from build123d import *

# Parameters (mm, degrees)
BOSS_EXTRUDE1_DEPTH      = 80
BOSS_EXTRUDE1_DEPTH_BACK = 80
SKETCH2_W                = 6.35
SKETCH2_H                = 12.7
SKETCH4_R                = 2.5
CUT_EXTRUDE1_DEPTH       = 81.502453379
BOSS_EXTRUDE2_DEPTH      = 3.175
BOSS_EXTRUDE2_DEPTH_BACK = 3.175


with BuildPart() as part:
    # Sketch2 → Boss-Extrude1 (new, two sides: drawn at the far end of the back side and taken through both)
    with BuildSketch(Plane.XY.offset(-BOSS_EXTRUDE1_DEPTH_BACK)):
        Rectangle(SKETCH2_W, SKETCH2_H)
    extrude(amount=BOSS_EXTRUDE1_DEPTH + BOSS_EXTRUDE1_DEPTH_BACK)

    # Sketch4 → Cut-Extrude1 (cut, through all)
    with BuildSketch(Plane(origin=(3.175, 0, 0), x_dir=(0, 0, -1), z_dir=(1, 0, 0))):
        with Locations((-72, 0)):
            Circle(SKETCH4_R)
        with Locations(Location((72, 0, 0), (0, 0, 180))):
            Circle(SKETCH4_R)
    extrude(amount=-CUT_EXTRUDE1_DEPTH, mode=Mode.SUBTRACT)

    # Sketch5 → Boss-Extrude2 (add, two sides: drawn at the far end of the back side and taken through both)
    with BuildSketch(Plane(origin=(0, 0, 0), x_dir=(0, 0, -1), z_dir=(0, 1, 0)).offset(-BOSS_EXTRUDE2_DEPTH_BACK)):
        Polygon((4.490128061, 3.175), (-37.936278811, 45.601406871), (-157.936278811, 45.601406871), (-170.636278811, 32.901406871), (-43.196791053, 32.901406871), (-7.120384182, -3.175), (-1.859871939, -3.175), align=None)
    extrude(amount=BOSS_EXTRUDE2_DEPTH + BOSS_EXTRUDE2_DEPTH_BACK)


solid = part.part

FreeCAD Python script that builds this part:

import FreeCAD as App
import Part
import Sketcher
Q = App.Units.Quantity


def add_polygon(sketch, points):
    """Adds a closed chain of lines whose ends are joined by coincident constraints."""
    first, n = sketch.GeometryCount, len(points)
    for a, b in zip(points, points[1:] + points[:1]):
        sketch.addGeometry(Part.LineSegment(App.Vector(*a, 0), App.Vector(*b, 0)), False)
    for i in range(n):
        sketch.addConstraint(Sketcher.Constraint("Coincident", first + i, 2, first + (i + 1) % n, 1))

doc = App.newDocument("Part")
body = doc.addObject("PartDesign::Body", "Body")

# Sketch on XY plane
sketch1 = body.newObject("Sketcher::SketchObject", "Sketch")
sketch1.AttachmentSupport = (doc.getObject("XY_Plane"), [""])
sketch1.MapMode = "FlatFace"
add_polygon(sketch1, [(-3.175, 6.35), (-3.175, -6.35), (3.175, -6.35), (3.175, 6.35)])  # lines 0-3
sketch1.addConstraint([
    Sketcher.Constraint("Vertical", 0),
    Sketcher.Constraint("Horizontal", 1),
    Sketcher.Constraint("Vertical", 2),
    Sketcher.Constraint("Horizontal", 3),
    Sketcher.Constraint("Symmetric", 0, 2, 2, 2, -1, 1),
    Sketcher.Constraint("DistanceY", 0, 2, 0, 1, Q("12.7 mm")),
    Sketcher.Constraint("DistanceX", 1, 1, 1, 2, Q("6.35 mm")),
])
pad1 = body.newObject("PartDesign::Pad", "Pad")
pad1.Profile = sketch1
pad1.Type = "TwoLengths"
pad1.Length = 80
pad1.Length2 = 80

# Sketch on YZ plane
sketch2 = body.newObject("Sketcher::SketchObject", "Sketch001")
sketch2.AttachmentSupport = (doc.getObject("YZ_Plane"), [""])
sketch2.MapMode = "FlatFace"
sketch2.AttachmentOffset = App.Placement(App.Vector(0, 0, 3.175), App.Rotation())
sketch2.addGeometry([
    Part.Circle(App.Vector(0, 72, 0), App.Vector(0, 0, 1), 2.5),
    Part.Circle(App.Vector(0, -72, 0), App.Vector(0, 0, 1), 2.5),
], False)
sketch2.addConstraint([
    Sketcher.Constraint("Equal", 0, 1),
    Sketcher.Constraint("Symmetric", 0, 3, 1, 3, -1, 1),
    Sketcher.Constraint("PointOnObject", 0, 3, -2),
    Sketcher.Constraint("Diameter", 0, Q("5 mm")),
    Sketcher.Constraint("DistanceY", -1, 1, 0, 3, Q("72 mm")),
])
pocket1 = body.newObject("PartDesign::Pocket", "Pocket")
pocket1.Profile = sketch2
pocket1.Type = "ThroughAll"

# Sketch on XZ plane
sketch3 = body.newObject("Sketcher::SketchObject", "Sketch002")
sketch3.AttachmentSupport = (doc.getObject("XZ_Plane"), [""])
sketch3.MapMode = "FlatFace"
add_polygon(sketch3, [(-3.175, -4.490128), (-45.601407, 37.936279), (-45.601407, 157.936279), (-32.901407, 170.636279), (-32.901407, 43.196791), (3.175, 7.120384), (3.175, 1.859872)])  # lines 0-6
sketch3.addConstraint([
    Sketcher.Constraint("Vertical", 1),
    Sketcher.Constraint("Vertical", 3),
    Sketcher.Constraint("Vertical", 5),
    Sketcher.Constraint("Perpendicular", 0, 2),
    Sketcher.Constraint("Perpendicular", 2, 4),
    Sketcher.Constraint("Perpendicular", 4, 6),
    Sketcher.Constraint("DistanceY", 1, 1, 1, 2, Q("120 mm")),
    Sketcher.Constraint("Angle", 0, Q("135 deg")),
    Sketcher.Constraint("Distance", 0, Q("60 mm")),
    Sketcher.Constraint("DistanceX", 1, 2, 2, 2, Q("12.7 mm")),
    Sketcher.Constraint("DistanceX", 6, 2, 5, 2, Q("6.35 mm")),
    Sketcher.Constraint("DistanceX", -1, 1, 4, 2, Q("3.175 mm")),
    Sketcher.Constraint("DistanceY", 3, 2, 3, 1, Q("127.439488 mm")),
    Sketcher.Constraint("DistanceY", -1, 1, 0, 2, Q("37.936279 mm")),
])
pad2 = body.newObject("PartDesign::Pad", "Pad001")
pad2.Profile = sketch3
pad2.Type = "TwoLengths"
pad2.Length = 3.175
pad2.Length2 = 3.175
pad2.Reversed = True

doc.recompute()
